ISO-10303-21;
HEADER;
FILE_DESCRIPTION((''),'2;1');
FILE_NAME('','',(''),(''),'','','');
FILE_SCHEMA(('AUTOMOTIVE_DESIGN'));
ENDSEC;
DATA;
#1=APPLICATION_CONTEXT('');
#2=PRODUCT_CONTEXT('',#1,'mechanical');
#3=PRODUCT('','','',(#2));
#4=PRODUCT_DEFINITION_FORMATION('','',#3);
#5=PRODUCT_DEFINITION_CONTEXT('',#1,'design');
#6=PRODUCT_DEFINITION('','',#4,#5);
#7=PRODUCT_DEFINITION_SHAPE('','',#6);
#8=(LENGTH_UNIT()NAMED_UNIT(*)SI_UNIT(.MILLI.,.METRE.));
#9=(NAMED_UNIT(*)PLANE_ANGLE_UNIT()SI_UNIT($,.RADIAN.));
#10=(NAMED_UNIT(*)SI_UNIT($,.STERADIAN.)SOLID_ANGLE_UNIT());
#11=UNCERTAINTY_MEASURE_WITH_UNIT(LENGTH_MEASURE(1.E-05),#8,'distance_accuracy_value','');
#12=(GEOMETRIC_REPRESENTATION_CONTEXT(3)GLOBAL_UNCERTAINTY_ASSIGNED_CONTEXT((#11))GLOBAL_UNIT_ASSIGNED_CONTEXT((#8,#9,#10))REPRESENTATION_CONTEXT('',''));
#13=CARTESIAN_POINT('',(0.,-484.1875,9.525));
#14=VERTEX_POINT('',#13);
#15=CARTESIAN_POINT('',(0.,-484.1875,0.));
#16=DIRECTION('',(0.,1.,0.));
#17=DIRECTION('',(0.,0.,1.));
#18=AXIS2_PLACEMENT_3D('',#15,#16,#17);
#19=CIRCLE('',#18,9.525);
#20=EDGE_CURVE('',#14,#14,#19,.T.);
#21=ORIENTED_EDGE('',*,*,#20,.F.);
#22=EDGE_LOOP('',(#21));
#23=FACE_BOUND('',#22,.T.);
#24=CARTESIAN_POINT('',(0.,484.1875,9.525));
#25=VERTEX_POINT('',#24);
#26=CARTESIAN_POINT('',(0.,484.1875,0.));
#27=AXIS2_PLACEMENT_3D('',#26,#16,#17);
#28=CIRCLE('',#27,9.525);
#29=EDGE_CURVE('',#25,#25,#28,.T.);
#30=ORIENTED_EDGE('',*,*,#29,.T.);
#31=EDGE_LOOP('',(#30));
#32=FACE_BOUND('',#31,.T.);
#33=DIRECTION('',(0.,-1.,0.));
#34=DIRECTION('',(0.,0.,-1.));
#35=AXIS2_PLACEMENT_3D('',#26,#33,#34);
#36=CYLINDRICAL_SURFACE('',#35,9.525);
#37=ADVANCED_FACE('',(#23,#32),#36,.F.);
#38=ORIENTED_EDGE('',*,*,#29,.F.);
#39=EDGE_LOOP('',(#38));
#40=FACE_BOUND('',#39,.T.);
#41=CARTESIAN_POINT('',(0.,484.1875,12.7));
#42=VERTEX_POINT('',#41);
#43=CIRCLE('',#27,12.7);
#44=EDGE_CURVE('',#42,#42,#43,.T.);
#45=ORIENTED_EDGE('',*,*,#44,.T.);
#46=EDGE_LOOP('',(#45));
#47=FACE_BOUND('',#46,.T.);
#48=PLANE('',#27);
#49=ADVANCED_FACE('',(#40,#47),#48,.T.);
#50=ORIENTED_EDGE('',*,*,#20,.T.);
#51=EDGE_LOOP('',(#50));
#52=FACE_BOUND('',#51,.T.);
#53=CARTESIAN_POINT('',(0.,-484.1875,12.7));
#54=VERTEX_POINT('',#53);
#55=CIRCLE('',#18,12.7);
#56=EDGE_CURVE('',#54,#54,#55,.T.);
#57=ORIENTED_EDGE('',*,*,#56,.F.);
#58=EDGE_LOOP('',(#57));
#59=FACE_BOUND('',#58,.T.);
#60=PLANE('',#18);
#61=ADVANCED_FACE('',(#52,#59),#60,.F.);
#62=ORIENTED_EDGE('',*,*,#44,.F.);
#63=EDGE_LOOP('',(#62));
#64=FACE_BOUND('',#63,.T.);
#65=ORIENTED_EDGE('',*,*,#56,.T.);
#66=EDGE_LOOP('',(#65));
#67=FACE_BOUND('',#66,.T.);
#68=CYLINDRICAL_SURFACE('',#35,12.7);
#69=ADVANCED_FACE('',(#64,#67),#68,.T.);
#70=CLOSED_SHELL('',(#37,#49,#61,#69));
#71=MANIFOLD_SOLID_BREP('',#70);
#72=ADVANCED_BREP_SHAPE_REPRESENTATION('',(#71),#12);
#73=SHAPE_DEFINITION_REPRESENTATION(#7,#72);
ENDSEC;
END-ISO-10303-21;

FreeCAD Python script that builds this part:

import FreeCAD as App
import Part
import Sketcher
Q = App.Units.Quantity

doc = App.newDocument("Part")
params = doc.addObject("Spreadsheet::Sheet", "Params")
for row, (alias, value) in enumerate([
    ("sketch1_diameter", "1 in"),
    ("sketch1_diameter2", "0.75 in"),
    ("pad1_length", "38.125 in"),
], start=1):
    params.set(f"A{row}", alias)
    params.set(f"B{row}", "=" + value)
    params.setAlias(f"B{row}", alias)

body = doc.addObject("PartDesign::Body", "Body")

# Sketch on XZ plane
sketch1 = doc.addObject("Sketcher::SketchObject", "Sketch")
body.addObject(sketch1)
sketch1.AttachmentSupport = (doc.XZ_Plane, [""])
sketch1.MapMode = "FlatFace"
sketch1.addGeometry([
    Part.Circle(App.Vector(0, 0, 0), App.Vector(0, 0, 1), 12.7),
    Part.Circle(App.Vector(0, 0, 0), App.Vector(0, 0, 1), 9.525),
], False)
sketch1.addConstraint([
    Sketcher.Constraint("Coincident", 0, 3, -1, 1),
    Sketcher.Constraint("Coincident", 1, 3, -1, 1),
    Sketcher.Constraint("Diameter", 0, Q("1 in")),
    Sketcher.Constraint("Diameter", 1, Q("0.75 in")),
])
sketch1.setExpression("Constraints[2]", "Params.sketch1_diameter")
sketch1.setExpression("Constraints[3]", "Params.sketch1_diameter2")
pad1 = doc.addObject("PartDesign::Pad", "Pad")
body.addObject(pad1)
pad1.Profile = sketch1
pad1.setExpression("Length", "Params.pad1_length")
pad1.Midplane = True

doc.recompute()
